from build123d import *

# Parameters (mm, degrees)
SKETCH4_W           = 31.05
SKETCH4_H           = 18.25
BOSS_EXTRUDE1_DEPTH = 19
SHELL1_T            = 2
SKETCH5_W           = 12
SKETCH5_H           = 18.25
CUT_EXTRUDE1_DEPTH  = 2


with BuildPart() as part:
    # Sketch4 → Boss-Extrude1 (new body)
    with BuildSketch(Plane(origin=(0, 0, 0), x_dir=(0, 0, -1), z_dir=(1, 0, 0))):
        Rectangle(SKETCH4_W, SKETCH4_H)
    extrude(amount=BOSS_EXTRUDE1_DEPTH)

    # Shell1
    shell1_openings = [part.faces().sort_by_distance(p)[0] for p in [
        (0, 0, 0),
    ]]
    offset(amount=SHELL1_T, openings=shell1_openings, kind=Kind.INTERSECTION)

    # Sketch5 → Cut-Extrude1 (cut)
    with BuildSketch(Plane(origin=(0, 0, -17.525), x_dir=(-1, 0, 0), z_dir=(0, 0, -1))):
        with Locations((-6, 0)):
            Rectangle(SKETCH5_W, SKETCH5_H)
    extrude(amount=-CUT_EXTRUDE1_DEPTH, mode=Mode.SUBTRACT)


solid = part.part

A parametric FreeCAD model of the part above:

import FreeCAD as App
import Part
import Sketcher

V = App.Vector


def faces_at(feature, points):
    """Names of the faces that lie closest to the given points."""
    faces = feature.Shape.Faces
    near = lambda p: min(range(len(faces)), key=lambda i: faces[i].distToShape(Part.Vertex(*p))[0])
    return sorted({f"Face{near(p) + 1}" for p in points})

doc = App.newDocument("Part")
body = doc.addObject("PartDesign::Body", "Body")

# Sketch on YZ plane
sketch1 = doc.addObject("Sketcher::SketchObject", "Sketch")
body.addObject(sketch1)
sketch1.AttachmentSupport = (doc.YZ_Plane, [""])
sketch1.MapMode = "FlatFace"
sketch1.addGeometry([
    Part.LineSegment(V(9.125, 15.525, 0), V(-9.125, 15.525, 0)),
    Part.LineSegment(V(-9.125, 15.525, 0), V(-9.125, -15.525, 0)),
    Part.LineSegment(V(-9.125, -15.525, 0), V(9.125, -15.525, 0)),
    Part.LineSegment(V(9.125, -15.525, 0), V(9.125, 15.525, 0)),
], False)
sketch1.addConstraint([
    Sketcher.Constraint("Coincident", 0, 2, 1, 1),
    Sketcher.Constraint("Coincident", 1, 2, 2, 1),
    Sketcher.Constraint("Coincident", 2, 2, 3, 1),
    Sketcher.Constraint("Coincident", 3, 2, 0, 1),
    Sketcher.Constraint("Horizontal", 0),
    Sketcher.Constraint("Vertical", 1),
    Sketcher.Constraint("Horizontal", 2),
    Sketcher.Constraint("Vertical", 3),
    Sketcher.Constraint("Symmetric", 0, 2, 2, 2, -1, 1),
    Sketcher.Constraint("DistanceX", 0, 2, 0, 1, 18.25),
    Sketcher.Constraint("DistanceY", 1, 2, 1, 1, 31.05),
])
pad1 = doc.addObject("PartDesign::Pad", "Pad")
body.addObject(pad1)
pad1.Profile = sketch1
pad1.Length = 19
doc.recompute()

thickness = doc.addObject("PartDesign::Thickness", "Thickness")
body.addObject(thickness)
thickness.Base = (pad1, faces_at(pad1, [(0, 0, 0)]))
thickness.Value = 2
thickness.Reversed = False
thickness.Join = "Intersection"

# Sketch on XY plane
sketch2 = doc.addObject("Sketcher::SketchObject", "Sketch001")
body.addObject(sketch2)
sketch2.AttachmentSupport = (doc.XY_Plane, [""])
sketch2.MapMode = "FlatFace"
sketch2.AttachmentOffset = App.Placement(V(0, 0, -17.525), App.Rotation())
sketch2.addGeometry([
    Part.LineSegment(V(12, 9.125, 0), V(12, -9.125, 0)),
    Part.LineSegment(V(12, -9.125, 0), V(0, -9.125, 0)),
    Part.LineSegment(V(0, -9.125, 0), V(0, 9.125, 0)),
    Part.LineSegment(V(0, 9.125, 0), V(12, 9.125, 0)),
], False)
sketch2.addConstraint([
    Sketcher.Constraint("Coincident", 0, 2, 1, 1),
    Sketcher.Constraint("Coincident", 1, 2, 2, 1),
    Sketcher.Constraint("Coincident", 2, 2, 3, 1),
    Sketcher.Constraint("Coincident", 3, 2, 0, 1),
    Sketcher.Constraint("Vertical", 0),
    Sketcher.Constraint("Horizontal", 1),
    Sketcher.Constraint("Vertical", 2),
    Sketcher.Constraint("Horizontal", 3),
    Sketcher.Constraint("Symmetric", 1, 2, 2, 2, -1, 1),
    Sketcher.Constraint("DistanceX", 1, 2, 1, 1, 12.0),
    Sketcher.Constraint("DistanceY", 0, 2, 0, 1, 18.25),
])
pocket1 = doc.addObject("PartDesign::Pocket", "Pocket")
body.addObject(pocket1)
pocket1.Profile = sketch2
pocket1.Length = 2
pocket1.Reversed = True

doc.recompute()
